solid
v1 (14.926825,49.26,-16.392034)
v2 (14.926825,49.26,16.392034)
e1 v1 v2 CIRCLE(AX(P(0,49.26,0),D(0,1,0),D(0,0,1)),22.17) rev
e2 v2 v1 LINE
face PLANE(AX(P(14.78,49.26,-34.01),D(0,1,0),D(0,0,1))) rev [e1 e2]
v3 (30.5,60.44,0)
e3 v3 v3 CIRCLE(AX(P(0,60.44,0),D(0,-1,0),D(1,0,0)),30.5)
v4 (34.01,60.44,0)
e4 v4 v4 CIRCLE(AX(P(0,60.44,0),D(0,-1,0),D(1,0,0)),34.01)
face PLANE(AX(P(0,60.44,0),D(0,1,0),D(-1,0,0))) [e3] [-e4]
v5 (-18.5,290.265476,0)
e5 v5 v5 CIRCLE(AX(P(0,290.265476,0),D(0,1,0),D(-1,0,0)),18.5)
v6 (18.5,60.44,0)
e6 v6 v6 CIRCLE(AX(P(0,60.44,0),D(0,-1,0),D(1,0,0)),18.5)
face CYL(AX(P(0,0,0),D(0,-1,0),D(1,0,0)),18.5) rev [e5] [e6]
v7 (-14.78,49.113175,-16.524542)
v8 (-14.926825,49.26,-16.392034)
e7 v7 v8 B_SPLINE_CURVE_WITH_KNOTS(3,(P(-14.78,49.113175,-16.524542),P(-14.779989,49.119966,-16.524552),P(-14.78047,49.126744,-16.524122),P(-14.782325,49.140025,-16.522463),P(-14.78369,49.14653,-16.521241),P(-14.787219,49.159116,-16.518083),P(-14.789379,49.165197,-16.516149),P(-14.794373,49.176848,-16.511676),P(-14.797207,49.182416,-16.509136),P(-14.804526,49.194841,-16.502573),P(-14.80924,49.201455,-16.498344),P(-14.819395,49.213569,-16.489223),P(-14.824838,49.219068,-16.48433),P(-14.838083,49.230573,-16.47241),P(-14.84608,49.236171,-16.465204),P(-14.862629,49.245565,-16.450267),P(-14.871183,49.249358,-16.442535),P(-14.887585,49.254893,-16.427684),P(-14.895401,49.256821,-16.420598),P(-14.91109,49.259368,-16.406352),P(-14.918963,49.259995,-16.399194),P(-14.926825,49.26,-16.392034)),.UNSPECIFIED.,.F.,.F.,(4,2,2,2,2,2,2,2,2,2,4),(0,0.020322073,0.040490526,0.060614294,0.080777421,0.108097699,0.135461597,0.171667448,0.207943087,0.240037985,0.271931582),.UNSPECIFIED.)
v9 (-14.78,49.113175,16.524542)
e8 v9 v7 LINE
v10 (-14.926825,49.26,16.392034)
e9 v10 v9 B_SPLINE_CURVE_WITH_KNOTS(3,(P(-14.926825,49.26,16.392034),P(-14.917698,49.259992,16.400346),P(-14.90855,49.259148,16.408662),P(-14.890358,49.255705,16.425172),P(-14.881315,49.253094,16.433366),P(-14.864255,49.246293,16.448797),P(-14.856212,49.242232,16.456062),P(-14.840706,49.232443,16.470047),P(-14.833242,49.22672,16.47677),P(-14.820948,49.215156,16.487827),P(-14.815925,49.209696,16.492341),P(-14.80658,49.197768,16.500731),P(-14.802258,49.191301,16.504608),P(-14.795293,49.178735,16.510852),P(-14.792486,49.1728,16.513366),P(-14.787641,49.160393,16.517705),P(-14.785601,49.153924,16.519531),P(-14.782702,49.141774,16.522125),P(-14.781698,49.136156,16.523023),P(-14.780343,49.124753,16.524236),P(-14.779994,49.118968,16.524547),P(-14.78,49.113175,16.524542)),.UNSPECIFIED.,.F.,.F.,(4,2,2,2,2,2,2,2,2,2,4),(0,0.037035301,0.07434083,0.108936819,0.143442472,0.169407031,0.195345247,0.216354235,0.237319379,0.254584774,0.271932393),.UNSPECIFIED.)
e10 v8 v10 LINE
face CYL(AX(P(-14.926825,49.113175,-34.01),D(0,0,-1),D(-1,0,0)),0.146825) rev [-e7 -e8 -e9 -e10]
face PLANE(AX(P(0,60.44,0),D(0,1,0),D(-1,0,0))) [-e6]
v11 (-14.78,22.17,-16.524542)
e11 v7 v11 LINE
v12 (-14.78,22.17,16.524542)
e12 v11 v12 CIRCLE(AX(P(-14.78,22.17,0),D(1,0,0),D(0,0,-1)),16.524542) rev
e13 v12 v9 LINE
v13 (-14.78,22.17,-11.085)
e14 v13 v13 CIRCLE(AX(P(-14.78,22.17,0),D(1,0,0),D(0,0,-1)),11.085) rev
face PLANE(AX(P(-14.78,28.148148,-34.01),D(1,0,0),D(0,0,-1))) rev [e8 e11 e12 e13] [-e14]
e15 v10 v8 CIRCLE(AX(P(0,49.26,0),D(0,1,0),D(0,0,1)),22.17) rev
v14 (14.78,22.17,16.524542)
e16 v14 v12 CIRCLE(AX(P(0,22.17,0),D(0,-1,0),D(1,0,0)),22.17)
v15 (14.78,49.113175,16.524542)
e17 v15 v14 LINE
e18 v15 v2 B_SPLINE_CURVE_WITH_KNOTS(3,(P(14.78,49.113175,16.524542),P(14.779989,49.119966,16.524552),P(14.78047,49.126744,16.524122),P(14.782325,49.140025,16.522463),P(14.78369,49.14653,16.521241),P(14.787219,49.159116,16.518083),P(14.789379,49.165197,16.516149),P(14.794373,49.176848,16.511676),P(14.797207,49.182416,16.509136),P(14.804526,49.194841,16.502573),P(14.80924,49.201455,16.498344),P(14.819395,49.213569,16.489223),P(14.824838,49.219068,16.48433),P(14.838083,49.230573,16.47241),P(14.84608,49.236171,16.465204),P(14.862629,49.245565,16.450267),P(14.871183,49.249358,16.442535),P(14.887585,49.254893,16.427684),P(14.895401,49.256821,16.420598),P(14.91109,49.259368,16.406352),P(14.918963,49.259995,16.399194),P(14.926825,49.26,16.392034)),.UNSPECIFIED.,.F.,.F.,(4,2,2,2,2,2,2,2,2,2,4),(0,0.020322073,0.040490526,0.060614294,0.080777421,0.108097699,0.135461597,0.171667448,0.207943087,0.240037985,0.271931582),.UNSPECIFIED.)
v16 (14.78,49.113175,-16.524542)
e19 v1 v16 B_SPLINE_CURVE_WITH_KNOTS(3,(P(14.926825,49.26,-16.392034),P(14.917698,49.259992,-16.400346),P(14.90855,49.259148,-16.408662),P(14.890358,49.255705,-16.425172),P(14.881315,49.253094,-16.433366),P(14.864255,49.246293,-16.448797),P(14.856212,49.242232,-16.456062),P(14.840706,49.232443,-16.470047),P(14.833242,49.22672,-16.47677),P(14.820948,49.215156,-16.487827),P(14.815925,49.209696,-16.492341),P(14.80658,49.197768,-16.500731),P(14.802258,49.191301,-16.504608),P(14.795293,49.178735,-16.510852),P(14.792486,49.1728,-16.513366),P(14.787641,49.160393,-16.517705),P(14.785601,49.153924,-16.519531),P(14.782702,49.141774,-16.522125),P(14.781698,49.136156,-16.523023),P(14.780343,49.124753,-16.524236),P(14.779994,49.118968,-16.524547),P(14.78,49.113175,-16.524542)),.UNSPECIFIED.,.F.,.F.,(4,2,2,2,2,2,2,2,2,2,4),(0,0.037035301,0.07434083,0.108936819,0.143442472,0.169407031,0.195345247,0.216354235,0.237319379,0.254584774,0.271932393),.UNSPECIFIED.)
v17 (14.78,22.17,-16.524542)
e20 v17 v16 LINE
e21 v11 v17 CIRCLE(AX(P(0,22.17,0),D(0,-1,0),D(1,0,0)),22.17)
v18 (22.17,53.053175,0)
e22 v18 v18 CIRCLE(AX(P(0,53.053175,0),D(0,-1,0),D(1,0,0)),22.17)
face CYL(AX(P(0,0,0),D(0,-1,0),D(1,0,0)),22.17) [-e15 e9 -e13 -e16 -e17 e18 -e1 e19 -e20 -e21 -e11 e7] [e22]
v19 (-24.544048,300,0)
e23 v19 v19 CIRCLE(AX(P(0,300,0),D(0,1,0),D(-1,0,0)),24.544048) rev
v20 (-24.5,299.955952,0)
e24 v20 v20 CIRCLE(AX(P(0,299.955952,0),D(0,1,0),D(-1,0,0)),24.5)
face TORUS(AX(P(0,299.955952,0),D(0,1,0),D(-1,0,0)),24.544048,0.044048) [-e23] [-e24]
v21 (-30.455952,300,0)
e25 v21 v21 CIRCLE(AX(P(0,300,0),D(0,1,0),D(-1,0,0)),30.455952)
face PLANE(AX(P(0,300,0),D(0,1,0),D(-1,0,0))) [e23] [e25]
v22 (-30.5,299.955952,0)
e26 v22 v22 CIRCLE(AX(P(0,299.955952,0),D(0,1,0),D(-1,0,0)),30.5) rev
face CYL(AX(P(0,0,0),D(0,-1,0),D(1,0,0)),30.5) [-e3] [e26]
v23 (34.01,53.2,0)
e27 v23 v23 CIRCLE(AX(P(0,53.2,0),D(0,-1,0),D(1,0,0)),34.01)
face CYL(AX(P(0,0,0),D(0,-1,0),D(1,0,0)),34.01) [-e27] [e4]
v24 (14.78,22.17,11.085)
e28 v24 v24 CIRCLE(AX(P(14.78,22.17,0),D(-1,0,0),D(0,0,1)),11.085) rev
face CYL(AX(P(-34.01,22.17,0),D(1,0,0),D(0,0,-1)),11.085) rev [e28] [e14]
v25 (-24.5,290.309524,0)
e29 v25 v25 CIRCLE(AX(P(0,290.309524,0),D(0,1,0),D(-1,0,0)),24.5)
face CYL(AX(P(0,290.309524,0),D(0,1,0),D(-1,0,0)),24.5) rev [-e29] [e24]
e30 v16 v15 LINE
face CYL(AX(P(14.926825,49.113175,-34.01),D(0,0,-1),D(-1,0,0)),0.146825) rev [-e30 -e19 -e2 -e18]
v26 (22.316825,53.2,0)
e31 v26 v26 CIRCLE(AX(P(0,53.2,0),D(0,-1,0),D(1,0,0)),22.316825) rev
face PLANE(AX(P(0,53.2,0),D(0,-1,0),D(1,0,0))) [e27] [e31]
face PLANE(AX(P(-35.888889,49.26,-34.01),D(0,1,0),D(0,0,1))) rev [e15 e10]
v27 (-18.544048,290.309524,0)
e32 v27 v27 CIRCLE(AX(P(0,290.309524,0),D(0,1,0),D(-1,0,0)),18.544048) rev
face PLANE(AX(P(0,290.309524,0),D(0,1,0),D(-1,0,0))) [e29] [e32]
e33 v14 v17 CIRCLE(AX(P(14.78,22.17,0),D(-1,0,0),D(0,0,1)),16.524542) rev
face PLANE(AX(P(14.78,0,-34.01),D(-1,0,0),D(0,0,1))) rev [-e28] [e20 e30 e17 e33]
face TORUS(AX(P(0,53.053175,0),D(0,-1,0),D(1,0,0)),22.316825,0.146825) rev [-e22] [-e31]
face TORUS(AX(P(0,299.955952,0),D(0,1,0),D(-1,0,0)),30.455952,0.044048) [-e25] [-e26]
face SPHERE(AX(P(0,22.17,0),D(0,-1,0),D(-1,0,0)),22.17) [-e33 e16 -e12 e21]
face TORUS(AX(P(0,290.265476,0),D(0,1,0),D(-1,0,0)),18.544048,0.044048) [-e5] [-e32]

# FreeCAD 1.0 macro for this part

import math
import FreeCAD as App
import Part
import Sketcher

V = App.Vector
Q = App.Units.Quantity


def edges_at(feature, points):
    """Names of the edges that pass closest to the given points."""
    edges = feature.Shape.Edges
    near = lambda p: min(range(len(edges)), key=lambda i: edges[i].distToShape(Part.Vertex(*p))[0])
    return sorted({f"Edge{near(p) + 1}" for p in points})

doc = App.newDocument("Part")
body = doc.addObject("PartDesign::Body", "Body")

# Sketch on XY plane
sketch1 = body.newObject("Sketcher::SketchObject", "Sketch")
sketch1.AttachmentSupport = (doc.getObject("XY_Plane"), [""])
sketch1.MapMode = "FlatFace"
sketch1.addGeometry([
    Part.LineSegment(V(34, 60.4, 0), V(30.5, 60.4, 0)),  # 0
    Part.LineSegment(V(30.5, 60.4, 0), V(30.5, 300, 0)),  # 1
    Part.LineSegment(V(30.5, 300, 0), V(18.5, 300, 0)),  # 2
    Part.LineSegment(V(18.5, 300, 0), V(18.5, 60.4, 0)),  # 3
    Part.LineSegment(V(18.5, 60.4, 0), V(0, 60.4, 0)),  # 4
    Part.LineSegment(V(0, 60.4, 0), V(0, 0, 0)),  # 5
    Part.ArcOfCircle(Part.Circle(V(0, 22.2, 0), V(0, 0, 1), 22.2), math.radians(-90), math.radians(0)),  # 6
    Part.LineSegment(V(22.2, 22.2, 0), V(22.2, 53.2, 0)),  # 7
    Part.LineSegment(V(22.2, 53.2, 0), V(34, 53.2, 0)),  # 8
    Part.LineSegment(V(34, 53.2, 0), V(34, 60.4, 0)),  # 9
], False)
sketch1.addConstraint([
    Sketcher.Constraint("Coincident", 0, 2, 1, 1),
    Sketcher.Constraint("Coincident", 1, 2, 2, 1),
    Sketcher.Constraint("Coincident", 2, 2, 3, 1),
    Sketcher.Constraint("Coincident", 3, 2, 4, 1),
    Sketcher.Constraint("Coincident", 4, 2, 5, 1),
    Sketcher.Constraint("Coincident", 5, 2, 6, 1),
    Sketcher.Constraint("Tangent", 6, 2, 7, 1),
    Sketcher.Constraint("Coincident", 7, 2, 8, 1),
    Sketcher.Constraint("Coincident", 8, 2, 9, 1),
    Sketcher.Constraint("Coincident", 9, 2, 0, 1),
    Sketcher.Constraint("Horizontal", 0),
    Sketcher.Constraint("Vertical", 1),
    Sketcher.Constraint("Horizontal", 2),
    Sketcher.Constraint("Vertical", 3),
    Sketcher.Constraint("Horizontal", 4),
    Sketcher.Constraint("Vertical", 5),
    Sketcher.Constraint("Vertical", 7),
    Sketcher.Constraint("Horizontal", 8),
    Sketcher.Constraint("Vertical", 9),
    Sketcher.Constraint("Coincident", 5, 2, -1, 1),
    Sketcher.Constraint("PointOnObject", 6, 3, -2),
    Sketcher.Constraint("Horizontal", 0, 2, 3, 2),
    Sketcher.Constraint("DistanceX", 2, 2, 2, 1, Q("12 mm")),
    Sketcher.Constraint("Radius", 6, Q("22.17 mm")),
    Sketcher.Constraint("DistanceX", 4, 2, 4, 1, Q("18.5 mm")),
    Sketcher.Constraint("DistanceY", -1, 1, 1, 2, Q("300 mm")),
    Sketcher.Constraint("DistanceX", 0, 2, 0, 1, Q("3.51 mm")),
    Sketcher.Constraint("DistanceY", 1, 1, 1, 2, Q("239.56 mm")),
    Sketcher.Constraint("DistanceY", 7, 1, 7, 2, Q("31.03 mm")),
])
revolution = body.newObject("PartDesign::Revolution", "Revolution")
revolution.Profile = sketch1
revolution.ReferenceAxis = (sketch1, ["V_Axis"])
revolution.Angle = 360

# Sketch on YZ plane
sketch2 = body.newObject("Sketcher::SketchObject", "Sketch001")
sketch2.AttachmentSupport = (doc.getObject("YZ_Plane"), [""])
sketch2.MapMode = "FlatFace"
sketch2.addGeometry(Part.Circle(V(22, 0, 0), V(0, 0, 1), 11), False)
sketch2.addConstraint([
    Sketcher.Constraint("PointOnObject", 0, 3, -1),
    Sketcher.Constraint("Diameter", 0, Q("22.17 mm")),
    Sketcher.Constraint("DistanceX", -1, 1, 0, 3, Q("22.17 mm")),
])
pocket1 = body.newObject("PartDesign::Pocket", "Pocket")
pocket1.Profile = sketch2
pocket1.Type = "ThroughAll"
pocket1.Midplane = True

# Sketch on XY plane
sketch3 = body.newObject("Sketcher::SketchObject", "Sketch002")
sketch3.AttachmentSupport = (doc.getObject("XY_Plane"), [""])
sketch3.MapMode = "FlatFace"
sketch3.addGeometry([
    Part.LineSegment(V(-53, 49, 0), V(-53, 0, 0)),  # 0
    Part.LineSegment(V(-53, 0, 0), V(-15, 0, 0)),  # 1
    Part.LineSegment(V(-15, 0, 0), V(-15, 49, 0)),  # 2
    Part.LineSegment(V(-15, 49, 0), V(-53, 49, 0)),  # 3
    Part.LineSegment(V(53, 49, 0), V(15, 49, 0)),  # 4
    Part.LineSegment(V(15, 49, 0), V(15, 0, 0)),  # 5
    Part.LineSegment(V(15, 0, 0), V(53, 0, 0)),  # 6
    Part.LineSegment(V(53, 0, 0), V(53, 49, 0)),  # 7
], False)
sketch3.addConstraint([
    Sketcher.Constraint("Coincident", 0, 2, 1, 1),
    Sketcher.Constraint("Coincident", 1, 2, 2, 1),
    Sketcher.Constraint("Coincident", 2, 2, 3, 1),
    Sketcher.Constraint("Coincident", 3, 2, 0, 1),
    Sketcher.Constraint("Coincident", 4, 2, 5, 1),
    Sketcher.Constraint("Coincident", 5, 2, 6, 1),
    Sketcher.Constraint("Coincident", 6, 2, 7, 1),
    Sketcher.Constraint("Coincident", 7, 2, 4, 1),
    Sketcher.Constraint("Vertical", 0),
    Sketcher.Constraint("Horizontal", 1),
    Sketcher.Constraint("Vertical", 2),
    Sketcher.Constraint("Horizontal", 3),
    Sketcher.Constraint("Horizontal", 4),
    Sketcher.Constraint("Vertical", 5),
    Sketcher.Constraint("Horizontal", 6),
    Sketcher.Constraint("Vertical", 7),
    Sketcher.Constraint("Symmetric", 1, 2, 5, 2, -1, 1),
    Sketcher.Constraint("Symmetric", 0, 2, 6, 2, -2),
    Sketcher.Constraint("Horizontal", 3, 2, 4, 2),
    Sketcher.Constraint("DistanceX", 1, 1, 1, 2, Q("38.55 mm")),
    Sketcher.Constraint("DistanceY", 0, 2, 0, 1, Q("49.26 mm")),
    Sketcher.Constraint("DistanceX", 0, 2, -1, 1, Q("53.33 mm")),
])
pocket2 = body.newObject("PartDesign::Pocket", "Pocket001")
pocket2.Profile = sketch3
pocket2.Type = "ThroughAll"
pocket2.Midplane = True
doc.recompute()

fillet = body.newObject("PartDesign::Fillet", "Fillet")
fillet.Base = (pocket2, edges_at(pocket2, [(-22.17, 53.2, 0), (14.78, 49.26, 0), (-14.78, 49.26, 0)]))
fillet.Radius = 0.146825

# Sketch on XZ plane
sketch4 = body.newObject("Sketcher::SketchObject", "Sketch003")
sketch4.AttachmentSupport = (doc.getObject("XZ_Plane"), [""])
sketch4.MapMode = "FlatFace"
sketch4.AttachmentOffset = App.Placement(V(0, 0, -300), App.Rotation())
sketch4.addGeometry(Part.Circle(V(0, 0, 0), V(0, 0, 1), 24), False)
sketch4.addConstraint([
    Sketcher.Constraint("Coincident", 0, 3, -1, 1),
    Sketcher.Constraint("Diameter", 0, Q("49 mm")),
])
pocket3 = body.newObject("PartDesign::Pocket", "Pocket002")
pocket3.Profile = sketch4
pocket3.Length = 9.690476
pocket3.Reversed = True
doc.recompute()

fillet2 = body.newObject("PartDesign::Fillet", "Fillet001")
fillet2.Base = (pocket3, edges_at(pocket3, [(-18.5, 290.31, 0), (24.5, 300, 0), (-30.5, 300, 0)]))
fillet2.Radius = 0.044048

doc.recompute()
